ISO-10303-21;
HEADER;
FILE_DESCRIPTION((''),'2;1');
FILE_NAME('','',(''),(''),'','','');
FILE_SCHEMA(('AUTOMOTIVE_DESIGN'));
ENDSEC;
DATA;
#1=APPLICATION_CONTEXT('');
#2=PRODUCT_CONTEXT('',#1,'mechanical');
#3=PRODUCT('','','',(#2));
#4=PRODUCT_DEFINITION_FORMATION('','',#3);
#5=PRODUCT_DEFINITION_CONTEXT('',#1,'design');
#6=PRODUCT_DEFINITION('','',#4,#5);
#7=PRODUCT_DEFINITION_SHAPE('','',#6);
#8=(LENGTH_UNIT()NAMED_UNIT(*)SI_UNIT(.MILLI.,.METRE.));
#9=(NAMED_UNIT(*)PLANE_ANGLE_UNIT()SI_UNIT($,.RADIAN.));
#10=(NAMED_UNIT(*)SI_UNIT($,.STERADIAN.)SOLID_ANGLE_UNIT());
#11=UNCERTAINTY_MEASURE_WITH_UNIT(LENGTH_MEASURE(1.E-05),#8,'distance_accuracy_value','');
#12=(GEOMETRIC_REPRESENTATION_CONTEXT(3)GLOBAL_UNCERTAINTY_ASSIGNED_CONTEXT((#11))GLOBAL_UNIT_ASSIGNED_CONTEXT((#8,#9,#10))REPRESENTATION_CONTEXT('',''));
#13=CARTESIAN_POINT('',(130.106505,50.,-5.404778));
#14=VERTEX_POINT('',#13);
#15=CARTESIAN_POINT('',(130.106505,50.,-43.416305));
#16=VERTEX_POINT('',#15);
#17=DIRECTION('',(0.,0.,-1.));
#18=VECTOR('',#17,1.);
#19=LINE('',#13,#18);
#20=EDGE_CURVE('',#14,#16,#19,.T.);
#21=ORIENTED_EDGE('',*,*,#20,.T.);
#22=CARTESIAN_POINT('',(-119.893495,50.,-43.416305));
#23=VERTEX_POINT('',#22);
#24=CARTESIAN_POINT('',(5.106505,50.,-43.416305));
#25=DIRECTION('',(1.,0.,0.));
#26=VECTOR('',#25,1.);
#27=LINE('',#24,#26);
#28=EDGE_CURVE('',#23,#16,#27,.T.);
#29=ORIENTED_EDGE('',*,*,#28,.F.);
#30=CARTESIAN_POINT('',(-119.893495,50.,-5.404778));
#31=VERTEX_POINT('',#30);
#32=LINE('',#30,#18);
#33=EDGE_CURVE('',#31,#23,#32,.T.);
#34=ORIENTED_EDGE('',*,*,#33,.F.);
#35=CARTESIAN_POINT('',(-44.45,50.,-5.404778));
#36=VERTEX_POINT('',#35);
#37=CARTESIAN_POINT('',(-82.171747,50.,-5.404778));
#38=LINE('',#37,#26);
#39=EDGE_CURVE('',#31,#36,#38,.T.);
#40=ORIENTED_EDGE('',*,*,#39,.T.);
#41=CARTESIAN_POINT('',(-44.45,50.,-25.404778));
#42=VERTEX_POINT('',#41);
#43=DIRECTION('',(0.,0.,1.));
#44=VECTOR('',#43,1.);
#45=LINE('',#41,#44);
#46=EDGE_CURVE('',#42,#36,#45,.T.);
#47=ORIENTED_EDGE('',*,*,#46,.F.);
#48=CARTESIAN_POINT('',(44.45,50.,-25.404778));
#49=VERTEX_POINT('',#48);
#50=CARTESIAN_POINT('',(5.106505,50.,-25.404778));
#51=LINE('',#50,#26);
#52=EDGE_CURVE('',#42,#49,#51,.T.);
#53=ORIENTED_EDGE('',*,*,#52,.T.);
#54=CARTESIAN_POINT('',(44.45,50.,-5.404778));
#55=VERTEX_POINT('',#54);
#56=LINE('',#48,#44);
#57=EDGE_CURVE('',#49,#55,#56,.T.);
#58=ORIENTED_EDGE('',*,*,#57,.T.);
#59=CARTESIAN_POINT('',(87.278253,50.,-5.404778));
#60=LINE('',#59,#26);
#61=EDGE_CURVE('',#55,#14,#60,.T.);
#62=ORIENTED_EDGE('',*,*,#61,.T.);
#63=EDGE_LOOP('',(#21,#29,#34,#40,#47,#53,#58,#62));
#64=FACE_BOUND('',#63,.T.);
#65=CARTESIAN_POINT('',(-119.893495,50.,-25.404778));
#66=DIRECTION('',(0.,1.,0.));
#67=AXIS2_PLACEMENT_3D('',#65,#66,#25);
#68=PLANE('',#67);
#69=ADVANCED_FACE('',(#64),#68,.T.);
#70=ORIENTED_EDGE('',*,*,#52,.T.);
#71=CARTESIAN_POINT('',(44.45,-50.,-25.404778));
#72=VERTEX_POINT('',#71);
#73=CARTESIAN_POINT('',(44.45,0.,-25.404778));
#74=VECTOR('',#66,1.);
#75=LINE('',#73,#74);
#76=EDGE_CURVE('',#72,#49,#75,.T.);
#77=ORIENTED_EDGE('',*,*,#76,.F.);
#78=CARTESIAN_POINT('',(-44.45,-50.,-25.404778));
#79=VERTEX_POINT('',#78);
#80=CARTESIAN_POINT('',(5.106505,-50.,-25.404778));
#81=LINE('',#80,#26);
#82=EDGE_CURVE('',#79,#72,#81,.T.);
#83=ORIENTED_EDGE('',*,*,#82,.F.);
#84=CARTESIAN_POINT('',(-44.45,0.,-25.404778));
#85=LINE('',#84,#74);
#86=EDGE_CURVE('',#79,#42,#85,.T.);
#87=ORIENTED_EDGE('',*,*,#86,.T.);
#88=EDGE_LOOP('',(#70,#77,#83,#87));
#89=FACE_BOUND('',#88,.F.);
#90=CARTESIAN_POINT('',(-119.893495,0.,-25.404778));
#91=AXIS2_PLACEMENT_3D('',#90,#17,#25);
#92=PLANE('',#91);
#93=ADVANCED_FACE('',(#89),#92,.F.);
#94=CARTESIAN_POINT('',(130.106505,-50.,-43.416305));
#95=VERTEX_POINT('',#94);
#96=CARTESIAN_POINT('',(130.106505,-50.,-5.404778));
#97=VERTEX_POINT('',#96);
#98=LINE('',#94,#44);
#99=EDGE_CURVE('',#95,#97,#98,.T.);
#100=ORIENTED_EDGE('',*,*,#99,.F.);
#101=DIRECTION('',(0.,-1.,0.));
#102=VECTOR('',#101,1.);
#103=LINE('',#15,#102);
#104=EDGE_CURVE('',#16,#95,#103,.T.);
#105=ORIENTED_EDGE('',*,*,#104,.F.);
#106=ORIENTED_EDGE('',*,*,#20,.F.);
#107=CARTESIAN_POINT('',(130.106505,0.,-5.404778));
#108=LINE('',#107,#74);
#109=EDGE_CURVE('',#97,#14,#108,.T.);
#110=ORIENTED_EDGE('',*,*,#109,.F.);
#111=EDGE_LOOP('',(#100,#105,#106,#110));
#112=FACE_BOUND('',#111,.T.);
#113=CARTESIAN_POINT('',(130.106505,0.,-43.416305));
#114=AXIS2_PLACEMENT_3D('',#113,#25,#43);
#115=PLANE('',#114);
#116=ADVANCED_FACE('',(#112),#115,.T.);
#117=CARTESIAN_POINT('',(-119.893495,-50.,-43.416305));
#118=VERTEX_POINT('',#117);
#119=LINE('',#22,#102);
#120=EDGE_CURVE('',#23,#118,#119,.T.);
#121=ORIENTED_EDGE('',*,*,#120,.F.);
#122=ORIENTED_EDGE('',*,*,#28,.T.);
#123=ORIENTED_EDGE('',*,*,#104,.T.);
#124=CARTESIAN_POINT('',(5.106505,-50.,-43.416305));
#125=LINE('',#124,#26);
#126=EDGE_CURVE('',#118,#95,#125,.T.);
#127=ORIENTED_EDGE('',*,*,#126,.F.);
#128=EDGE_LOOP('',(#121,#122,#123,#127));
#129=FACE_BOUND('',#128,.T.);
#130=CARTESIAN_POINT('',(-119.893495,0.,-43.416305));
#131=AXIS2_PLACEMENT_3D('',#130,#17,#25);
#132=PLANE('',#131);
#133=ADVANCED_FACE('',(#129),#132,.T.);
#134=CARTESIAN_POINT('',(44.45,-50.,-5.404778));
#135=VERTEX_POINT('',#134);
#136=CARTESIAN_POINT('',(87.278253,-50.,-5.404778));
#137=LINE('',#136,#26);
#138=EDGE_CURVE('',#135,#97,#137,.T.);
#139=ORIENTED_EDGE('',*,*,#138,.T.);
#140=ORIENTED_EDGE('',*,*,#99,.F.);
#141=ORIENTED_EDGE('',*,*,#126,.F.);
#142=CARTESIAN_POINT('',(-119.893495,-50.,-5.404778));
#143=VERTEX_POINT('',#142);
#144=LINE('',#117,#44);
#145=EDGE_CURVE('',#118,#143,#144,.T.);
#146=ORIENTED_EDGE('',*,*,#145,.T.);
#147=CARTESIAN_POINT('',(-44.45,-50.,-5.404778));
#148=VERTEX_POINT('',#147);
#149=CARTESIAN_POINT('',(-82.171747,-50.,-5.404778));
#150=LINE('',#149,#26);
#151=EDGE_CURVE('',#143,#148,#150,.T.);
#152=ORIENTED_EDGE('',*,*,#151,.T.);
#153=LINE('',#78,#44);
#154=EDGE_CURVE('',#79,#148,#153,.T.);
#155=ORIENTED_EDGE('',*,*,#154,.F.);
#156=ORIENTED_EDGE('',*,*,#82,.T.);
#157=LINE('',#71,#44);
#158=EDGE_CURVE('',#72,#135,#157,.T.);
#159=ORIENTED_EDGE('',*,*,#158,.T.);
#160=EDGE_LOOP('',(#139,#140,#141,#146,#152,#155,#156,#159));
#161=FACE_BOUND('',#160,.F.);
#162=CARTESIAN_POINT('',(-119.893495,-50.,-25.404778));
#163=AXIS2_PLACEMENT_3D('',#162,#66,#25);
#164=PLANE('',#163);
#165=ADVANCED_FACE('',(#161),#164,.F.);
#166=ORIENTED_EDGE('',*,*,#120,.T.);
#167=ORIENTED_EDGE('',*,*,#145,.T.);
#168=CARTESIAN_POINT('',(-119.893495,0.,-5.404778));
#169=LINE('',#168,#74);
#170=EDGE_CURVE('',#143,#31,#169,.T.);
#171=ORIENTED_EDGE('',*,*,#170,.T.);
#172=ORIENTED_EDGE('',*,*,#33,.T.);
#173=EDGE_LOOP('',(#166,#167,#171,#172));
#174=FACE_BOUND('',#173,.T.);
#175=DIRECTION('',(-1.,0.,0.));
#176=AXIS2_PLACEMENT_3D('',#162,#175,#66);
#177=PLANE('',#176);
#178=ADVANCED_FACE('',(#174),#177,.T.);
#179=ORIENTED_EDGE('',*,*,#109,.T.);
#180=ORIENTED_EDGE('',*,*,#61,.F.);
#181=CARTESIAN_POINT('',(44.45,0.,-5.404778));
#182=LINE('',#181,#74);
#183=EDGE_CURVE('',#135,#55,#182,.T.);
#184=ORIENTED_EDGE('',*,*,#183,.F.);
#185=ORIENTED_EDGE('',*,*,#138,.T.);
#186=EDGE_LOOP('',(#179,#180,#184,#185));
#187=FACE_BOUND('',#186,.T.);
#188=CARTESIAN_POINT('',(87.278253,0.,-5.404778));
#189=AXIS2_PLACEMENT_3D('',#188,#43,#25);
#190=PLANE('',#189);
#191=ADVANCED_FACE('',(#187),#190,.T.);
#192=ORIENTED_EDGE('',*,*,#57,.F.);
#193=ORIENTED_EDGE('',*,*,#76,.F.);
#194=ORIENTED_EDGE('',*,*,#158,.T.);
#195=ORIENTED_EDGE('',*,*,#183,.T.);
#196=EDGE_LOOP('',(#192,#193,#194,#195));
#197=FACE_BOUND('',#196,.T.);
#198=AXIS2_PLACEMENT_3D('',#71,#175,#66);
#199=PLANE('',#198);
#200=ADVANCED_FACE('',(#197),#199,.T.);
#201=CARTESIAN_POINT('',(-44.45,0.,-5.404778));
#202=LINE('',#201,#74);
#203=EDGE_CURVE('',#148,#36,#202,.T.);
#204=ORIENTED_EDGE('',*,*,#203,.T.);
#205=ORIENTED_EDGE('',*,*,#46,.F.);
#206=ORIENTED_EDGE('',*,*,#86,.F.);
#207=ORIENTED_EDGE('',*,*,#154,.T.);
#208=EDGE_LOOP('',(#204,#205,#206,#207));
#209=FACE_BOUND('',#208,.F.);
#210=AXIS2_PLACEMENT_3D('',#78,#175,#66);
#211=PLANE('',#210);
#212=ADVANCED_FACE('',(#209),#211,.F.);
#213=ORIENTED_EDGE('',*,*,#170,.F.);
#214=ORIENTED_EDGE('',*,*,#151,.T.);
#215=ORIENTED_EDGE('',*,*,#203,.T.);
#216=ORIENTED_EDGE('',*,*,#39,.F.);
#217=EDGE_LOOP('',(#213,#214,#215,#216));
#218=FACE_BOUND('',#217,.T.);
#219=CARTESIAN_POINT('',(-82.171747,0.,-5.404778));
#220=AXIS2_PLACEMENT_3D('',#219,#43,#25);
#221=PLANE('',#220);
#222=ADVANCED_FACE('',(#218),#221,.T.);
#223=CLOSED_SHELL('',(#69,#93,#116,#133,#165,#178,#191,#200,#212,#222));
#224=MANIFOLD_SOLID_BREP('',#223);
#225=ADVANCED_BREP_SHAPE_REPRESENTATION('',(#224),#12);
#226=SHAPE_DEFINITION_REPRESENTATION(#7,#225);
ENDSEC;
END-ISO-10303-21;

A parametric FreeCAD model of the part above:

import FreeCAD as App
import Part
import Sketcher


def add_polygon(sketch, points):
    """Adds a closed chain of lines whose ends are joined by coincident constraints."""
    first, n = sketch.GeometryCount, len(points)
    for a, b in zip(points, points[1:] + points[:1]):
        sketch.addGeometry(Part.LineSegment(App.Vector(*a, 0), App.Vector(*b, 0)), False)
    for i in range(n):
        sketch.addConstraint(Sketcher.Constraint("Coincident", first + i, 2, first + (i + 1) % n, 1))

doc = App.newDocument("Part")
body = doc.addObject("PartDesign::Body", "Body")

# Sketch on XZ plane
sketch1 = body.newObject("Sketcher::SketchObject", "Sketch")
sketch1.AttachmentSupport = (doc.getObject("XZ_Plane"), [""])
sketch1.MapMode = "FlatFace"
add_polygon(sketch1, [(-119.893495, -25.404778), (-119.893495, -43.416305), (130.106505, -43.416305), (130.106505, -25.404778)])  # lines 0-3
sketch1.addConstraint([
    Sketcher.Constraint("Vertical", 0),
    Sketcher.Constraint("Horizontal", 1),
    Sketcher.Constraint("Vertical", 2),
    Sketcher.Constraint("Horizontal", 3),
    Sketcher.Constraint("DistanceX", 1, 1, 1, 2, 250.0),
    Sketcher.Constraint("DistanceY", 0, 2, 0, 1, 18.011527),
    Sketcher.Constraint("DistanceY", 2, 2, -1, 1, 25.404778),
    Sketcher.Constraint("DistanceX", 0, 2, -1, 1, 119.893495),
])
pad1 = body.newObject("PartDesign::Pad", "Pad")
pad1.Profile = sketch1
pad1.Length = 100
pad1.Midplane = True

# Sketch on XY plane
sketch2 = body.newObject("Sketcher::SketchObject", "Sketch001")
sketch2.AttachmentSupport = (doc.getObject("XY_Plane"), [""])
sketch2.MapMode = "FlatFace"
sketch2.AttachmentOffset = App.Placement(App.Vector(0, 0, -25.404778), App.Rotation())
add_polygon(sketch2, [(-119.893495, 50), (-119.893495, -50), (-44.45, -50), (-44.45, 50)])  # lines 0-3
add_polygon(sketch2, [(44.45, 50), (44.45, -50), (130.106505, -50), (130.106505, 50)])  # lines 4-7
sketch2.addConstraint([
    Sketcher.Constraint("Vertical", 0),
    Sketcher.Constraint("Horizontal", 1),
    Sketcher.Constraint("Vertical", 2),
    Sketcher.Constraint("Horizontal", 3),
    Sketcher.Constraint("Vertical", 4),
    Sketcher.Constraint("Horizontal", 5),
    Sketcher.Constraint("Vertical", 6),
    Sketcher.Constraint("Horizontal", 7),
    Sketcher.Constraint("Symmetric", 2, 2, 4, 2, -1, 1),
    Sketcher.Constraint("Horizontal", 1, 2, 4, 2),
    Sketcher.Constraint("Horizontal", 3, 2, 6, 2),
    Sketcher.Constraint("DistanceY", 0, 2, 0, 1, 100.0),
    Sketcher.Constraint("DistanceX", 0, 2, 5, 2, 250.0),
    Sketcher.Constraint("DistanceX", 1, 2, 4, 2, 88.9),
    Sketcher.Constraint("DistanceX", 1, 1, 1, 2, 75.443495),
])
pad2 = body.newObject("PartDesign::Pad", "Pad001")
pad2.Profile = sketch2
pad2.Length = 20

doc.recompute()
